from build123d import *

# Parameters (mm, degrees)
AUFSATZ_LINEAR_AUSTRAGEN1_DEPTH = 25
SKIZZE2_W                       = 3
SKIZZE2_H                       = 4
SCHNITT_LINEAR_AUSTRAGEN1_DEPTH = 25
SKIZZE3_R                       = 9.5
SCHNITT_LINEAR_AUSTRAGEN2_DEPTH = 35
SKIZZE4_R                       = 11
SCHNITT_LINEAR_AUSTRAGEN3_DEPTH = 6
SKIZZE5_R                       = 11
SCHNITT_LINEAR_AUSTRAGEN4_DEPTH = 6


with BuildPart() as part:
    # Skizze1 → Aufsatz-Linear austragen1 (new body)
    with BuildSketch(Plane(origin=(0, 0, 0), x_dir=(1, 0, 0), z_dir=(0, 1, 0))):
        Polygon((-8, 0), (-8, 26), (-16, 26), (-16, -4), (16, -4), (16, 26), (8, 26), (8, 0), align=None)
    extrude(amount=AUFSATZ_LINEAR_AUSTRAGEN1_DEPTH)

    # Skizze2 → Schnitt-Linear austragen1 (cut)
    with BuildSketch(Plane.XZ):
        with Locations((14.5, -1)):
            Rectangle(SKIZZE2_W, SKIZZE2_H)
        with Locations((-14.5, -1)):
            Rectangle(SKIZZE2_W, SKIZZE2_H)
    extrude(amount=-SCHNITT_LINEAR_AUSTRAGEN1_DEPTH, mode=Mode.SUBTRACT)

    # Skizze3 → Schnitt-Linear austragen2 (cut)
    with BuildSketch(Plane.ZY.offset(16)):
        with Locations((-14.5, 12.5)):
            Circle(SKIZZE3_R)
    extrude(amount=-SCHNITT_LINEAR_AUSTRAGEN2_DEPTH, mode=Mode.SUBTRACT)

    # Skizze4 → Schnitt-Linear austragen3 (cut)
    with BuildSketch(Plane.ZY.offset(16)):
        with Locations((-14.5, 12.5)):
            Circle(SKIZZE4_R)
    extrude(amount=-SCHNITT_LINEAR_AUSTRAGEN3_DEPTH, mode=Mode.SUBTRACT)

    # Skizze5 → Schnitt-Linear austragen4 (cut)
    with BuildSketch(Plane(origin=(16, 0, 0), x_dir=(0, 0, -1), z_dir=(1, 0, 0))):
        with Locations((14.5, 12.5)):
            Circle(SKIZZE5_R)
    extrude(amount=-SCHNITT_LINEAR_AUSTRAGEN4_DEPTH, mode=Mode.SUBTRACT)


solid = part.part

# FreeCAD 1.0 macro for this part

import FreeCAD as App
import Part
import Sketcher
from FreeCAD import Vector
Q = App.Units.Quantity


def add_polygon(sketch, points):
    """Adds a closed chain of lines whose ends are joined by coincident constraints."""
    first, n = sketch.GeometryCount, len(points)
    for a, b in zip(points, points[1:] + points[:1]):
        sketch.addGeometry(Part.LineSegment(App.Vector(*a, 0), App.Vector(*b, 0)), False)
    for i in range(n):
        sketch.addConstraint(Sketcher.Constraint("Coincident", first + i, 2, first + (i + 1) % n, 1))

doc = App.newDocument("Part")
params = doc.addObject("Spreadsheet::Sheet", "Params")
for row, (alias, value) in enumerate([
    ("sketch1_width", "8 mm"),
    ("sketch1_width2", "32 mm"),
    ("sketch1_height", "26 mm"),
    ("sketch1_height2", "30 mm"),
    ("pad1_length", "25 mm"),
    ("sketch2_width", "3 mm"),
    ("sketch2_height", "4 mm"),
    ("pocket1_length", "25 mm"),
    ("sketch3_diameter", "19 mm"),
    ("pocket2_length", "35 mm"),
    ("sketch4_diameter", "22 mm"),
    ("pocket3_length", "6 mm"),
    ("sketch5_diameter", "22 mm"),
    ("pocket4_length", "6 mm"),
], start=1):
    params.set(f"A{row}", alias)
    params.set(f"B{row}", "=" + value)
    params.setAlias(f"B{row}", alias)

body = doc.addObject("PartDesign::Body", "Body")

sketch1 = body.newObject("Sketcher::SketchObject", "Sketch")
sketch1.AttachmentSupport = (doc.getObject("XZ_Plane"), [""])
sketch1.MapMode = "FlatFace"
add_polygon(sketch1, [(-8, 0), (-8, -26), (-16, -26), (-16, 4), (16, 4), (16, -26), (8, -26), (8, 0)])
sketch1.addConstraint(Sketcher.Constraint("Vertical", 0))
sketch1.addConstraint(Sketcher.Constraint("Horizontal", 1))
sketch1.addConstraint(Sketcher.Constraint("Vertical", 2))
sketch1.addConstraint(Sketcher.Constraint("Horizontal", 3))
sketch1.addConstraint(Sketcher.Constraint("Vertical", 4))
sketch1.addConstraint(Sketcher.Constraint("Horizontal", 5))
sketch1.addConstraint(Sketcher.Constraint("Vertical", 6))
sketch1.addConstraint(Sketcher.Constraint("Horizontal", 7))
sketch1.addConstraint(Sketcher.Constraint("Symmetric", 6, 2, 7, 2, -1, 1))
sketch1.addConstraint(Sketcher.Constraint("Symmetric", 1, 2, 4, 2, -2))
sketch1.addConstraint(Sketcher.Constraint("DistanceX", 1, 2, 1, 1, Q("8 mm")))
sketch1.addConstraint(Sketcher.Constraint("DistanceX", 3, 1, 3, 2, Q("32 mm")))
sketch1.addConstraint(Sketcher.Constraint("DistanceY", 0, 2, 0, 1, Q("26 mm")))
sketch1.addConstraint(Sketcher.Constraint("DistanceY", 2, 1, 2, 2, Q("30 mm")))
sketch1.setExpression("Constraints[18]", "Params.sketch1_width")
sketch1.setExpression("Constraints[19]", "Params.sketch1_width2")
sketch1.setExpression("Constraints[20]", "Params.sketch1_height")
sketch1.setExpression("Constraints[21]", "Params.sketch1_height2")
pad1 = body.newObject("PartDesign::Pad", "Pad")
pad1.Profile = sketch1
pad1.setExpression("Length", "Params.pad1_length")
pad1.Reversed = True

sketch2 = body.newObject("Sketcher::SketchObject", "Sketch001")
sketch2.AttachmentSupport = (doc.getObject("XZ_Plane"), [""])
sketch2.MapMode = "FlatFace"
add_polygon(sketch2, [(13, 1), (13, -3), (16, -3), (16, 1)])
add_polygon(sketch2, [(-16, 1), (-16, -3), (-13, -3), (-13, 1)])
sketch2.addConstraint(Sketcher.Constraint("Vertical", 0))
sketch2.addConstraint(Sketcher.Constraint("Horizontal", 1))
sketch2.addConstraint(Sketcher.Constraint("Vertical", 2))
sketch2.addConstraint(Sketcher.Constraint("Horizontal", 3))
sketch2.addConstraint(Sketcher.Constraint("Vertical", 4))
sketch2.addConstraint(Sketcher.Constraint("Horizontal", 5))
sketch2.addConstraint(Sketcher.Constraint("Vertical", 6))
sketch2.addConstraint(Sketcher.Constraint("Horizontal", 7))
sketch2.addConstraint(Sketcher.Constraint("Symmetric", 1, 2, 4, 2, -2))
sketch2.addConstraint(Sketcher.Constraint("Symmetric", 3, 2, 6, 2, -2))
sketch2.addConstraint(Sketcher.Constraint("DistanceX", 1, 1, 1, 2, Q("3 mm")))
sketch2.addConstraint(Sketcher.Constraint("DistanceY", 0, 2, 0, 1, Q("4 mm")))
sketch2.addConstraint(Sketcher.Constraint("DistanceX", -1, 1, 0, 2, Q("13 mm")))
sketch2.addConstraint(Sketcher.Constraint("DistanceY", 0, 2, -1, 1, Q("3 mm")))
sketch2.setExpression("Constraints[18]", "Params.sketch2_width")
sketch2.setExpression("Constraints[19]", "Params.sketch2_height")
pocket1 = body.newObject("PartDesign::Pocket", "Pocket")
pocket1.Profile = sketch2
pocket1.setExpression("Length", "Params.pocket1_length")

sketch3 = body.newObject("Sketcher::SketchObject", "Sketch002")
sketch3.AttachmentSupport = (doc.getObject("YZ_Plane"), [""])
sketch3.MapMode = "FlatFace"
sketch3.AttachmentOffset = App.Placement(Vector(0, 0, -16), App.Rotation())
sketch3.addGeometry(Part.Circle(Vector(12, -14, 0), Vector(0, 0, 1), 10), False)
sketch3.addConstraint(Sketcher.Constraint("Diameter", 0, Q("19 mm")))
sketch3.addConstraint(Sketcher.Constraint("DistanceX", -1, 1, 0, 3, Q("12.5 mm")))
sketch3.addConstraint(Sketcher.Constraint("DistanceY", 0, 3, -1, 1, Q("14.5 mm")))
sketch3.setExpression("Constraints[0]", "Params.sketch3_diameter")
pocket2 = body.newObject("PartDesign::Pocket", "Pocket001")
pocket2.Profile = sketch3
pocket2.setExpression("Length", "Params.pocket2_length")
pocket2.Reversed = True

sketch4 = body.newObject("Sketcher::SketchObject", "Sketch003")
sketch4.AttachmentSupport = (doc.getObject("YZ_Plane"), [""])
sketch4.MapMode = "FlatFace"
sketch4.AttachmentOffset = App.Placement(Vector(0, 0, -16), App.Rotation())
sketch4.addGeometry(Part.Circle(Vector(12, -14, 0), Vector(0, 0, 1), 11), False)
sketch4.addConstraint(Sketcher.Constraint("Diameter", 0, Q("22 mm")))
sketch4.addConstraint(Sketcher.Constraint("DistanceX", -1, 1, 0, 3, Q("12.5 mm")))
sketch4.addConstraint(Sketcher.Constraint("DistanceY", 0, 3, -1, 1, Q("14.5 mm")))
sketch4.setExpression("Constraints[0]", "Params.sketch4_diameter")
pocket3 = body.newObject("PartDesign::Pocket", "Pocket002")
pocket3.Profile = sketch4
pocket3.setExpression("Length", "Params.pocket3_length")
pocket3.Reversed = True

sketch5 = body.newObject("Sketcher::SketchObject", "Sketch004")
sketch5.AttachmentSupport = (doc.getObject("YZ_Plane"), [""])
sketch5.MapMode = "FlatFace"
sketch5.AttachmentOffset = App.Placement(Vector(0, 0, 16), App.Rotation())
sketch5.addGeometry(Part.Circle(Vector(12, -14, 0), Vector(0, 0, 1), 11), False)
sketch5.addConstraint(Sketcher.Constraint("Diameter", 0, Q("22 mm")))
sketch5.addConstraint(Sketcher.Constraint("DistanceX", -1, 1, 0, 3, Q("12.5 mm")))
sketch5.addConstraint(Sketcher.Constraint("DistanceY", 0, 3, -1, 1, Q("14.5 mm")))
sketch5.setExpression("Constraints[0]", "Params.sketch5_diameter")
pocket4 = body.newObject("PartDesign::Pocket", "Pocket003")
pocket4.Profile = sketch5
pocket4.setExpression("Length", "Params.pocket4_length")

doc.recompute()
